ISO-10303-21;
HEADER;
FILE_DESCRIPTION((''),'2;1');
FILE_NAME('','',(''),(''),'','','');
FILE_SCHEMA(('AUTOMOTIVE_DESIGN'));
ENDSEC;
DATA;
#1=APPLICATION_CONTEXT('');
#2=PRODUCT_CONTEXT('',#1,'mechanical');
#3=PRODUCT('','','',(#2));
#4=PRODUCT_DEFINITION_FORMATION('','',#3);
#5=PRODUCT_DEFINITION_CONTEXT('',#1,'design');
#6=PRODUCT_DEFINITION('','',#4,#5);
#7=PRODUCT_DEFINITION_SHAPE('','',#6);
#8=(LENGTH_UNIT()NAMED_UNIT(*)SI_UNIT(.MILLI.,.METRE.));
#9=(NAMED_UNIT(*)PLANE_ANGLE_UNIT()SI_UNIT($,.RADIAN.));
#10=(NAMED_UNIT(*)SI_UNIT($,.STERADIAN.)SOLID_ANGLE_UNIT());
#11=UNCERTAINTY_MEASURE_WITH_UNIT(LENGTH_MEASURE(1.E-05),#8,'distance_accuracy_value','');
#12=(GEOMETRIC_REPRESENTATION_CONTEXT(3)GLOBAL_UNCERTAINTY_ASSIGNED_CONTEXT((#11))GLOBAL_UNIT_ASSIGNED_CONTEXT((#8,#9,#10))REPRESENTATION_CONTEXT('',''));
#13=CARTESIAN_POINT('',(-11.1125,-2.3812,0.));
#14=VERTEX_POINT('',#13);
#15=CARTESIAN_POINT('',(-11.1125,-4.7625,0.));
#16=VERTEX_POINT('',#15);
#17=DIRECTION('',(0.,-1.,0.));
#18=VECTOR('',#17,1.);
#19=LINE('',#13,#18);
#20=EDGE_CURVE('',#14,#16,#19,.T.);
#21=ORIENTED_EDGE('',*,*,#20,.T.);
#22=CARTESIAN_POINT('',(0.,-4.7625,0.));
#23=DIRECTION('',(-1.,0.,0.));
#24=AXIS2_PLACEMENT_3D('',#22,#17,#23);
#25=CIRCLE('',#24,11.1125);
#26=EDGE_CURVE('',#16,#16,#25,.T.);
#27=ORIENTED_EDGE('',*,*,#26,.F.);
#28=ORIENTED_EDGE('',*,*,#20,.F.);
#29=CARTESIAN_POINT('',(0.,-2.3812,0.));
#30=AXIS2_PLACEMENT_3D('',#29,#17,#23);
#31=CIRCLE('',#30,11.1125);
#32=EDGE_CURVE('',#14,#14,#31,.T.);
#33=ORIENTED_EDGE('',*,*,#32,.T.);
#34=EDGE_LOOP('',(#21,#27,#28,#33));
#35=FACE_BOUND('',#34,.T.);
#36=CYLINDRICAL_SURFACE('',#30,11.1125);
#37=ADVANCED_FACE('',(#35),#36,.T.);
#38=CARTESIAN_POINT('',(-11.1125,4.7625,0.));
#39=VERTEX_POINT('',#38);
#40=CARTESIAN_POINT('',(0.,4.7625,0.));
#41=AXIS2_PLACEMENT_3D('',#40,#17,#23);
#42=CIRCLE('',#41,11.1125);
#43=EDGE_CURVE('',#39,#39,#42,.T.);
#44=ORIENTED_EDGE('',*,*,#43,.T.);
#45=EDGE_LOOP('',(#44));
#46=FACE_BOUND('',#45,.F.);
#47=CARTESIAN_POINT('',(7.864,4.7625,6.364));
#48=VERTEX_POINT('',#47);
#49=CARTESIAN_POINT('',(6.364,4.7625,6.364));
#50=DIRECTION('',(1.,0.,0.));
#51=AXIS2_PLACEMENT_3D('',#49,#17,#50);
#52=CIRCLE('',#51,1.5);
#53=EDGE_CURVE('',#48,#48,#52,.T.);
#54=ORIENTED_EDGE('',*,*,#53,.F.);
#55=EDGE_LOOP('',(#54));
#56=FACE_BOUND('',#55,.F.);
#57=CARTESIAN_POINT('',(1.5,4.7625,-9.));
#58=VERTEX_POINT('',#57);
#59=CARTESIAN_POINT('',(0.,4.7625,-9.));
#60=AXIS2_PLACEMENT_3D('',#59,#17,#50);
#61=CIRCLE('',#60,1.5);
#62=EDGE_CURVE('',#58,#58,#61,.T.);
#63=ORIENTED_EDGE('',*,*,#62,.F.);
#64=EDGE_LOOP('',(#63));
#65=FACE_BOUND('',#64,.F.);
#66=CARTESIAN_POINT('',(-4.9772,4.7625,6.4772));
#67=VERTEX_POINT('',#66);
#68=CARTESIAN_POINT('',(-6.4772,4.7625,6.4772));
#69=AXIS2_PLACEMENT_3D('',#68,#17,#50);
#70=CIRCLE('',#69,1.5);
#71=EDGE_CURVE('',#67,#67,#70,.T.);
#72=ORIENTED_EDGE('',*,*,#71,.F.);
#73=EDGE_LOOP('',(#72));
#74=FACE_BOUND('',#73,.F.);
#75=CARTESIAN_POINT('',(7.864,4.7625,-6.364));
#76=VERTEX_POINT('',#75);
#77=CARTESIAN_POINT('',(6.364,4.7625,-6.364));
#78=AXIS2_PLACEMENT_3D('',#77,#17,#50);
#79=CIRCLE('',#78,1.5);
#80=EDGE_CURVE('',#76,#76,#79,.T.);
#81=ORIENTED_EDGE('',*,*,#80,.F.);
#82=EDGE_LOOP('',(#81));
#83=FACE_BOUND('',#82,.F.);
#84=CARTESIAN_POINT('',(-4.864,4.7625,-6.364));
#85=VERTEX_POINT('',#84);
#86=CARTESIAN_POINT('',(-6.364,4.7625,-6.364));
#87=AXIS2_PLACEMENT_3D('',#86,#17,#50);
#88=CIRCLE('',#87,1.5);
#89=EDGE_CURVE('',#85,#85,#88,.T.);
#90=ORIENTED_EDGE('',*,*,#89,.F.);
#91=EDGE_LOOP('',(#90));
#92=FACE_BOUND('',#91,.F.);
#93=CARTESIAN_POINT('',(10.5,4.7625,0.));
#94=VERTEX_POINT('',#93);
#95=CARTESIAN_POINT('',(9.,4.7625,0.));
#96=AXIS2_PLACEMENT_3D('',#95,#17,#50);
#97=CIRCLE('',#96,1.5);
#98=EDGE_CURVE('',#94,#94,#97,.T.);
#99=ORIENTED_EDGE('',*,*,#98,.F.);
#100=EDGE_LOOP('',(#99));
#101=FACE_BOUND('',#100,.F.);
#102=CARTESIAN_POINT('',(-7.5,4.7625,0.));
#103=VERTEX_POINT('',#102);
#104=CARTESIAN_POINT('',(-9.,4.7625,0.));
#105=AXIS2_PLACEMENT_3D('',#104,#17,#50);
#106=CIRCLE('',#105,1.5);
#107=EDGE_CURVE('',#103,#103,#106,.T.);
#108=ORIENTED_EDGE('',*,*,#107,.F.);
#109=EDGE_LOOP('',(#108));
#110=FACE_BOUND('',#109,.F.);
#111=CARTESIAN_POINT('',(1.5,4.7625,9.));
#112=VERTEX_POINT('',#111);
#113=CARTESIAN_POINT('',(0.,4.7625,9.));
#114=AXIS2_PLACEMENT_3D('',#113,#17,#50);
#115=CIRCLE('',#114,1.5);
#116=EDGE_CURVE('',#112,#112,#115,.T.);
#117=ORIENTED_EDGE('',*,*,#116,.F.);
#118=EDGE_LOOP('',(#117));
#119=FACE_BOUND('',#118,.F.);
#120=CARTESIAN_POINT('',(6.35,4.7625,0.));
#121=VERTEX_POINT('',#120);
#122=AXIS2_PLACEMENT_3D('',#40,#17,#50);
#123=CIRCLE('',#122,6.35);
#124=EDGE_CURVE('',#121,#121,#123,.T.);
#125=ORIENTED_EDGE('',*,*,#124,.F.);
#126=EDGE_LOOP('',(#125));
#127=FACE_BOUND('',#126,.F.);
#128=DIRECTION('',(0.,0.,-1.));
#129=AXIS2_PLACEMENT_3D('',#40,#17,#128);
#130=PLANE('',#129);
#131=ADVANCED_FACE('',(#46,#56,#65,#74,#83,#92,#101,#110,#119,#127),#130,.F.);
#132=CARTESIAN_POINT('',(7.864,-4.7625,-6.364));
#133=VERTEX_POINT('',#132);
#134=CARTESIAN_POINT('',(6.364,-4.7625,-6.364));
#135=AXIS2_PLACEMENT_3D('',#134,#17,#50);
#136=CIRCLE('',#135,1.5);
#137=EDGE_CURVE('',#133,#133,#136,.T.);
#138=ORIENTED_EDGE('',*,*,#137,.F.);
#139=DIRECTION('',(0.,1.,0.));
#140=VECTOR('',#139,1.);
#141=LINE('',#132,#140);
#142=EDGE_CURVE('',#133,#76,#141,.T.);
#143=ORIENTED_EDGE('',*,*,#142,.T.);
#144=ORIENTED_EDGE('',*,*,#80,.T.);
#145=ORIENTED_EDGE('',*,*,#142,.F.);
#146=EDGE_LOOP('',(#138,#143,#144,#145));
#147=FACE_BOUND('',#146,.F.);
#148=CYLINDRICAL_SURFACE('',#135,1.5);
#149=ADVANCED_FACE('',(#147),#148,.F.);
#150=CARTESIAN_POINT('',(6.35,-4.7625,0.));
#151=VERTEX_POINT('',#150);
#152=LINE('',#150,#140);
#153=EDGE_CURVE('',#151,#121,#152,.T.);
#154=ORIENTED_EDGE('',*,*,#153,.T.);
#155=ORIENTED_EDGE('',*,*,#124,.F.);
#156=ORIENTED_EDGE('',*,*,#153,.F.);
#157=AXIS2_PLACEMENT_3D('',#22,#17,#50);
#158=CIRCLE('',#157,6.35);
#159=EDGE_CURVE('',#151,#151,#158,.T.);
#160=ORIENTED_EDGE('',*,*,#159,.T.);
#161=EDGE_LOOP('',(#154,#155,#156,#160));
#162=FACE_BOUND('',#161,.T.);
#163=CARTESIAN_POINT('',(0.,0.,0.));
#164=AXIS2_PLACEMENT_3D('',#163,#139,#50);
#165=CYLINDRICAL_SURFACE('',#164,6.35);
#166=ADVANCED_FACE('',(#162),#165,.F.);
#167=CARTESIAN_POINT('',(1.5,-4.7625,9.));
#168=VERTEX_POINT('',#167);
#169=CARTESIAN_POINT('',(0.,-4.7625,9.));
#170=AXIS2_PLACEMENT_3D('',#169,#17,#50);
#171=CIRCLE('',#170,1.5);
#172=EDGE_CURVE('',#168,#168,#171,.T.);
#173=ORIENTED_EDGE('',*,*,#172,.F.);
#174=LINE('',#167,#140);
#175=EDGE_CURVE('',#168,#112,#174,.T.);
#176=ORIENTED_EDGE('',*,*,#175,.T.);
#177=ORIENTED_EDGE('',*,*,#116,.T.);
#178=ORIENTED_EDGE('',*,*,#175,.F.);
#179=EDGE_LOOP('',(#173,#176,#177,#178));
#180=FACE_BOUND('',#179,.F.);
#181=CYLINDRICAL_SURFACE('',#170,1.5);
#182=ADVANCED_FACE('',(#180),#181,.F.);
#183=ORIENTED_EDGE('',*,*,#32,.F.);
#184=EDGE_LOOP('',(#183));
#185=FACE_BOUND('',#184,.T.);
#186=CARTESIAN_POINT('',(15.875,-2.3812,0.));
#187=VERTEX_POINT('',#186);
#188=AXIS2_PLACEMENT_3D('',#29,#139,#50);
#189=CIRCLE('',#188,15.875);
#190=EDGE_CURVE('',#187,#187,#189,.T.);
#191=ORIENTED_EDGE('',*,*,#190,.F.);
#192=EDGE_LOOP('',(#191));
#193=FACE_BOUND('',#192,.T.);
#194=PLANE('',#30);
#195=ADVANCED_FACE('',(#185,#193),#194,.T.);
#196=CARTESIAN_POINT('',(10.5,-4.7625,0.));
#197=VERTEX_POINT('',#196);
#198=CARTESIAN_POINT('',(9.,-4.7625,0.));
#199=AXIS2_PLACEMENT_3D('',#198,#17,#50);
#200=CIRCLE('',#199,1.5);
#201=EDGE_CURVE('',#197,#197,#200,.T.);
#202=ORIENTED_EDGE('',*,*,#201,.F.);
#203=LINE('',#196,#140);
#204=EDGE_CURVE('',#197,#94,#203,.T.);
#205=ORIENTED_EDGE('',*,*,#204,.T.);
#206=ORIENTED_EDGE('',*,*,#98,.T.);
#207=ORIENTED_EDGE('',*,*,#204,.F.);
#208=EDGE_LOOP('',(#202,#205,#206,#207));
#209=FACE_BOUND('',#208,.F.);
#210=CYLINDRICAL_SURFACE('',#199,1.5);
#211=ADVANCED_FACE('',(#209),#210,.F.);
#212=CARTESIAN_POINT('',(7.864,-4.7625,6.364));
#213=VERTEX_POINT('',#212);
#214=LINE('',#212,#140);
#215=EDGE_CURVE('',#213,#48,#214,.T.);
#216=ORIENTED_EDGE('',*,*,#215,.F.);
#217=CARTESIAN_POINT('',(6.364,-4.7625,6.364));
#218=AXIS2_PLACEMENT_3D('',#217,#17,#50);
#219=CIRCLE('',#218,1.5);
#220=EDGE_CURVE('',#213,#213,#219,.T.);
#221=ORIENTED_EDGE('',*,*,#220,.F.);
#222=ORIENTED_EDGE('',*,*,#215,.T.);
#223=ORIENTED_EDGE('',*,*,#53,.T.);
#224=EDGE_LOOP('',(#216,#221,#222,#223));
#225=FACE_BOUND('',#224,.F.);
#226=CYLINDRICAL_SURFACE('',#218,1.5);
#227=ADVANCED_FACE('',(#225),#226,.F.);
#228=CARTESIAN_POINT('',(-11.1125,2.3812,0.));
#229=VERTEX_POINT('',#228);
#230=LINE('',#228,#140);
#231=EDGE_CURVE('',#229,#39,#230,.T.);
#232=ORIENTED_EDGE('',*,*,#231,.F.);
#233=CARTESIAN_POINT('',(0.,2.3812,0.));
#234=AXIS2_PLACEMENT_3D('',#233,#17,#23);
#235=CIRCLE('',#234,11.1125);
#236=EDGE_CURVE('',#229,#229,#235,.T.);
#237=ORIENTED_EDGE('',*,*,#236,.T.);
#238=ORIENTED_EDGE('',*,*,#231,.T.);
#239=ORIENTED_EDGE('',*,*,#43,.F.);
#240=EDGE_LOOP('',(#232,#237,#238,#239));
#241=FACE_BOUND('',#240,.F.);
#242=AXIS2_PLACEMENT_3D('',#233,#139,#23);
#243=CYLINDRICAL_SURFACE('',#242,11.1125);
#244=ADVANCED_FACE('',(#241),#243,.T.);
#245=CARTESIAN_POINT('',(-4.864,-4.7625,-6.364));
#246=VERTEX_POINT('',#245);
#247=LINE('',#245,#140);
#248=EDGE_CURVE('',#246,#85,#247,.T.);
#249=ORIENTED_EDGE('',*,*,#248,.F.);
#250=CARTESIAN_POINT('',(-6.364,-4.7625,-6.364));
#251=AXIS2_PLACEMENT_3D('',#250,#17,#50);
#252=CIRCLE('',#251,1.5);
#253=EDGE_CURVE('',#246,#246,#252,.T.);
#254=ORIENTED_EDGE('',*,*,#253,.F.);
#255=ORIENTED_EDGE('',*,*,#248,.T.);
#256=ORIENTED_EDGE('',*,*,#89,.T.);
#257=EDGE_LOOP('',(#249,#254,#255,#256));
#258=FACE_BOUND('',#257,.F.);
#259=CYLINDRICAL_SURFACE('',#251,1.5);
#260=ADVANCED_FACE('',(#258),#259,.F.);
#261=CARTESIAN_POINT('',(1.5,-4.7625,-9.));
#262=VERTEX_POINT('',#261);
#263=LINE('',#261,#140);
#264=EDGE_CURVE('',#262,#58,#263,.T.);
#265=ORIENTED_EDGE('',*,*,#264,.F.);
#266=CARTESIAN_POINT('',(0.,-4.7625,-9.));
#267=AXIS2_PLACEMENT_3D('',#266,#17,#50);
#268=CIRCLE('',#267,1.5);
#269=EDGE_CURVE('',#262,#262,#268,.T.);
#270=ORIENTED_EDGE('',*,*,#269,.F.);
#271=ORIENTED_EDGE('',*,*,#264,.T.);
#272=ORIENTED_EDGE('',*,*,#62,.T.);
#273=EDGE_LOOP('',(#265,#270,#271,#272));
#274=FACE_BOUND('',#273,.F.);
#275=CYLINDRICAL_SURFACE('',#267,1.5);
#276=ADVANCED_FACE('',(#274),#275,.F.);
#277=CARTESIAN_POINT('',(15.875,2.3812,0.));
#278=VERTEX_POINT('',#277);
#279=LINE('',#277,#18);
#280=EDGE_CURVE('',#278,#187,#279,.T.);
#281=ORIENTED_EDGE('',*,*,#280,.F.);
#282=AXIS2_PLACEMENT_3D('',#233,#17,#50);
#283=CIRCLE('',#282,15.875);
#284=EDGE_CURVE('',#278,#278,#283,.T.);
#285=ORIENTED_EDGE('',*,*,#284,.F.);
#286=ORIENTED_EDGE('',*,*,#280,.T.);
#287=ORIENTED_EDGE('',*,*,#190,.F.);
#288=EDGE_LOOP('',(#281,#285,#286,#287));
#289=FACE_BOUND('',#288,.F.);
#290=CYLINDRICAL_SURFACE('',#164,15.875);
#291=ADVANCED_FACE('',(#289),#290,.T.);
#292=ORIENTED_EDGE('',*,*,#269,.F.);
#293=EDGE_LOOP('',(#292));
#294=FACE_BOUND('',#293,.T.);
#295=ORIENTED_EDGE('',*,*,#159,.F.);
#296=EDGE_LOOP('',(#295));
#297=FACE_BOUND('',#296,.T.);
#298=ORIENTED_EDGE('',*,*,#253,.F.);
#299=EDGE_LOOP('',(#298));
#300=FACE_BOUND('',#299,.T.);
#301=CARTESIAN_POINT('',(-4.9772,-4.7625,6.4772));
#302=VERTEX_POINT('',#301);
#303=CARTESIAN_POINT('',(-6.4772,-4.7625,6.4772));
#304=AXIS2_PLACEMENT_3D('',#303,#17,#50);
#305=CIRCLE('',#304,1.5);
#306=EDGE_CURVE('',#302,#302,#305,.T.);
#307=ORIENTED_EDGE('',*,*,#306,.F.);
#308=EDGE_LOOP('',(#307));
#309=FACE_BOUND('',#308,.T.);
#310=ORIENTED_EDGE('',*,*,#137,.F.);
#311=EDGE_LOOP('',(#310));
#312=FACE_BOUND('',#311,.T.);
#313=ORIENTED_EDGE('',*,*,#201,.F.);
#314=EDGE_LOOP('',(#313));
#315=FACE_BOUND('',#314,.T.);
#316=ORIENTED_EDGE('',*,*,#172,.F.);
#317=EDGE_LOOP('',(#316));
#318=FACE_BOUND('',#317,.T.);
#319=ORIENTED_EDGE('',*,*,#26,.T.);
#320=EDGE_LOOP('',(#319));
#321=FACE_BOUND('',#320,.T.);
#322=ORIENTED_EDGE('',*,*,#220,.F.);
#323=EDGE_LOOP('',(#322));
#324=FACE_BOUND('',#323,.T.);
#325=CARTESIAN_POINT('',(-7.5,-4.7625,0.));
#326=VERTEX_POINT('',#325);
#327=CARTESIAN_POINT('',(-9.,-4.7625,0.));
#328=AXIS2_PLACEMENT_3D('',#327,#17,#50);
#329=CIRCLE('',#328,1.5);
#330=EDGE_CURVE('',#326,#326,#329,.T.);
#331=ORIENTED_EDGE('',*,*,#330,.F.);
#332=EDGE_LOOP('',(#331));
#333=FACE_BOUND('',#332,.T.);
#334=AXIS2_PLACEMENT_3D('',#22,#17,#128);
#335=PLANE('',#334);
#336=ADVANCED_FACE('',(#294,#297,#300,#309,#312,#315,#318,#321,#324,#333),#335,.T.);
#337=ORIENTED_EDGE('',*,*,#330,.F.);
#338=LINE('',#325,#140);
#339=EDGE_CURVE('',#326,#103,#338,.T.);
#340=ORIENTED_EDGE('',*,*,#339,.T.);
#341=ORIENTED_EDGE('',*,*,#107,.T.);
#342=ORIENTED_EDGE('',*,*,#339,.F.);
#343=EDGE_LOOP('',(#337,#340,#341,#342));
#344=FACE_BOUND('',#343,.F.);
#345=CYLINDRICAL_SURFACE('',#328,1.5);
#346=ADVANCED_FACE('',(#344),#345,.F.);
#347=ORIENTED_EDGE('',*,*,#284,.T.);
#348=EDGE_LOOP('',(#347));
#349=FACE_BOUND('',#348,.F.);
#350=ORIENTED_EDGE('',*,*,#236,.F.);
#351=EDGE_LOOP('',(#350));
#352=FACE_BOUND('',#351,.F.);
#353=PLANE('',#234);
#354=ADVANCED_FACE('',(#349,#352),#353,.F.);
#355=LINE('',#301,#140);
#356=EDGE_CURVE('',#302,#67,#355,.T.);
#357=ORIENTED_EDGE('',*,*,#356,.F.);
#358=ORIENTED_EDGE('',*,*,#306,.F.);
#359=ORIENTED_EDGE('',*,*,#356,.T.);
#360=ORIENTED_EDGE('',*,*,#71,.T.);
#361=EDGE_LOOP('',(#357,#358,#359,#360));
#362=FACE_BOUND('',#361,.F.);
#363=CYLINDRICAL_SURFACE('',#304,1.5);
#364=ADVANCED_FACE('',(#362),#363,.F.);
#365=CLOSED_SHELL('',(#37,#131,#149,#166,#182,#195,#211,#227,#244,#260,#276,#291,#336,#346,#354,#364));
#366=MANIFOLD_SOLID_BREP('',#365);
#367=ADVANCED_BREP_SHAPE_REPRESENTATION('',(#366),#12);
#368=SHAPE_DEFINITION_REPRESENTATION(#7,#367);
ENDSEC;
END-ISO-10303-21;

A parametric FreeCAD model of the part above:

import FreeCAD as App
import Part
import Sketcher
Q = App.Units.Quantity

doc = App.newDocument("Part")
params = doc.addObject("Spreadsheet::Sheet", "Params")
for row, (alias, value) in enumerate([
    ("sketch1_diameter", "0.5 in"),
    ("sketch1_diameter2", "1.25 in"),
    ("pad1_length", "0.375 in"),
    ("pocket1_length", "0.375 in"),
    ("sketch3_width", "0.1875 in"),
    ("sketch3_height", "0.093752 in"),
    ("groove_angle", "360 deg"),
], start=1):
    params.set(f"A{row}", alias)
    params.set(f"B{row}", "=" + value)
    params.setAlias(f"B{row}", alias)

body = doc.addObject("PartDesign::Body", "Body")

sketch1 = body.newObject("Sketcher::SketchObject", "Sketch")
sketch1.AttachmentSupport = (doc.getObject("XZ_Plane"), [""])
sketch1.MapMode = "FlatFace"
sketch1.addGeometry(Part.Circle(App.Vector(0, 0, 0), App.Vector(0, 0, 1), 16), False)
sketch1.addGeometry(Part.Circle(App.Vector(0, 0, 0), App.Vector(0, 0, 1), 6), False)
sketch1.addConstraint(Sketcher.Constraint("Coincident", 0, 3, -1, 1))
sketch1.addConstraint(Sketcher.Constraint("Coincident", 1, 3, -1, 1))
sketch1.addConstraint(Sketcher.Constraint("Diameter", 1, Q("0.5 in")))
sketch1.addConstraint(Sketcher.Constraint("Diameter", 0, Q("1.25 in")))
sketch1.setExpression("Constraints[2]", "Params.sketch1_diameter")
sketch1.setExpression("Constraints[3]", "Params.sketch1_diameter2")
pad1 = body.newObject("PartDesign::Pad", "Pad")
pad1.Profile = sketch1
pad1.setExpression("Length", "Params.pad1_length")
pad1.Midplane = True

sketch2 = body.newObject("Sketcher::SketchObject", "Sketch001")
sketch2.AttachmentSupport = (doc.getObject("XZ_Plane"), [""])
sketch2.MapMode = "FlatFace"
sketch2.AttachmentOffset = App.Placement(App.Vector(0, 0, 0.1875 * 25.4), App.Rotation())
sketch2.addGeometry(Part.Circle(App.Vector(0, 9, 0), App.Vector(0, 0, 1), 1.5), False)
sketch2.addGeometry(Part.Circle(App.Vector(9, 0, 0), App.Vector(0, 0, 1), 1.5), False)
sketch2.addGeometry(Part.Circle(App.Vector(0, -9, 0), App.Vector(0, 0, 1), 1.5), False)
sketch2.addGeometry(Part.Circle(App.Vector(-9, 0, 0), App.Vector(0, 0, 1), 1.5), False)
sketch2.addGeometry(Part.Circle(App.Vector(-6.5, 6.5, 0), App.Vector(0, 0, 1), 1.5), False)
sketch2.addGeometry(Part.Circle(App.Vector(6.4, 6.4, 0), App.Vector(0, 0, 1), 1.5), False)
sketch2.addGeometry(Part.Circle(App.Vector(6.4, -6.4, 0), App.Vector(0, 0, 1), 1.5), False)
sketch2.addGeometry(Part.Circle(App.Vector(-6.4, -6.4, 0), App.Vector(0, 0, 1), 1.5), False)
sketch2.addConstraint(Sketcher.Constraint("Equal", 0, 1))
sketch2.addConstraint(Sketcher.Constraint("Equal", 1, 2))
sketch2.addConstraint(Sketcher.Constraint("Equal", 2, 3))
sketch2.addConstraint(Sketcher.Constraint("Equal", 3, 4))
sketch2.addConstraint(Sketcher.Constraint("Equal", 4, 5))
sketch2.addConstraint(Sketcher.Constraint("Equal", 5, 6))
sketch2.addConstraint(Sketcher.Constraint("Equal", 6, 7))
sketch2.addConstraint(Sketcher.Constraint("Symmetric", 0, 3, 2, 3, -1, 1))
sketch2.addConstraint(Sketcher.Constraint("Symmetric", 1, 3, 3, 3, -1, 1))
sketch2.addConstraint(Sketcher.Constraint("Symmetric", 5, 3, 7, 3, -1, 1))
sketch2.addConstraint(Sketcher.Constraint("Symmetric", 6, 3, 7, 3, -2))
sketch2.addConstraint(Sketcher.Constraint("PointOnObject", 0, 3, -2))
sketch2.addConstraint(Sketcher.Constraint("PointOnObject", 1, 3, -1))
sketch2.addConstraint(Sketcher.Constraint("Diameter", 0, Q("0.1181 in")))
sketch2.addConstraint(Sketcher.Constraint("DistanceX", 4, 3, -1, 1, Q("0.255 in")))
sketch2.addConstraint(Sketcher.Constraint("DistanceY", -1, 1, 4, 3, Q("0.255 in")))
sketch2.addConstraint(Sketcher.Constraint("DistanceY", 6, 3, 5, 3, Q("0.5011 in")))
sketch2.addConstraint(Sketcher.Constraint("DistanceX", 7, 3, 6, 3, Q("0.5011 in")))
sketch2.addConstraint(Sketcher.Constraint("DistanceY", -1, 1, 0, 3, Q("9 mm")))
sketch2.addConstraint(Sketcher.Constraint("DistanceX", -1, 1, 1, 3, Q("9 mm")))
pocket1 = body.newObject("PartDesign::Pocket", "Pocket")
pocket1.Profile = sketch2
pocket1.setExpression("Length", "Params.pocket1_length")

sketch3 = body.newObject("Sketcher::SketchObject", "Sketch002")
sketch3.AttachmentSupport = (doc.getObject("XY_Plane"), [""])
sketch3.MapMode = "FlatFace"
sketch3.addGeometry(Part.LineSegment(App.Vector(-11.1, -2.4, 0), App.Vector(-15.9, -2.4, 0)), False)
sketch3.addGeometry(Part.LineSegment(App.Vector(-15.9, -2.4, 0), App.Vector(-15.9, -4.8, 0)), False)
sketch3.addGeometry(Part.LineSegment(App.Vector(-15.9, -4.8, 0), App.Vector(-11.1, -4.8, 0)), False)
sketch3.addGeometry(Part.LineSegment(App.Vector(-11.1, -4.8, 0), App.Vector(-11.1, -2.4, 0)), False)
sketch3.addGeometry(Part.LineSegment(App.Vector(-15.9, 4.8, 0), App.Vector(-15.9, 2.4, 0)), False)
sketch3.addGeometry(Part.LineSegment(App.Vector(-15.9, 2.4, 0), App.Vector(-11.1, 2.4, 0)), False)
sketch3.addGeometry(Part.LineSegment(App.Vector(-11.1, 2.4, 0), App.Vector(-11.1, 4.8, 0)), False)
sketch3.addGeometry(Part.LineSegment(App.Vector(-11.1, 4.8, 0), App.Vector(-15.9, 4.8, 0)), False)
sketch3.addConstraint(Sketcher.Constraint("Coincident", 0, 2, 1, 1))
sketch3.addConstraint(Sketcher.Constraint("Coincident", 1, 2, 2, 1))
sketch3.addConstraint(Sketcher.Constraint("Coincident", 2, 2, 3, 1))
sketch3.addConstraint(Sketcher.Constraint("Coincident", 3, 2, 0, 1))
sketch3.addConstraint(Sketcher.Constraint("Coincident", 4, 2, 5, 1))
sketch3.addConstraint(Sketcher.Constraint("Coincident", 5, 2, 6, 1))
sketch3.addConstraint(Sketcher.Constraint("Coincident", 6, 2, 7, 1))
sketch3.addConstraint(Sketcher.Constraint("Coincident", 7, 2, 4, 1))
sketch3.addConstraint(Sketcher.Constraint("Horizontal", 0))
sketch3.addConstraint(Sketcher.Constraint("Vertical", 1))
sketch3.addConstraint(Sketcher.Constraint("Horizontal", 2))
sketch3.addConstraint(Sketcher.Constraint("Vertical", 3))
sketch3.addConstraint(Sketcher.Constraint("Vertical", 4))
sketch3.addConstraint(Sketcher.Constraint("Horizontal", 5))
sketch3.addConstraint(Sketcher.Constraint("Vertical", 6))
sketch3.addConstraint(Sketcher.Constraint("Horizontal", 7))
sketch3.addConstraint(Sketcher.Constraint("Symmetric", 0, 2, 4, 2, -1))
sketch3.addConstraint(Sketcher.Constraint("Symmetric", 2, 2, 6, 2, -1))
sketch3.addConstraint(Sketcher.Constraint("DistanceX", 0, 2, -1, 1, Q("0.625 in")))
sketch3.addConstraint(Sketcher.Constraint("DistanceX", 0, 2, 0, 1, Q("0.1875 in")))
sketch3.addConstraint(Sketcher.Constraint("DistanceY", 1, 2, 1, 1, Q("0.093752 in")))
sketch3.addConstraint(Sketcher.Constraint("DistanceY", 0, 2, -1, 1, Q("0.093748 in")))
sketch3.setExpression("Constraints[19]", "Params.sketch3_width")
sketch3.setExpression("Constraints[20]", "Params.sketch3_height")
groove = body.newObject("PartDesign::Groove", "Groove")
groove.Profile = sketch3
groove.ReferenceAxis = (sketch3, ["V_Axis"])
groove.setExpression("Angle", "Params.groove_angle")

doc.recompute()
